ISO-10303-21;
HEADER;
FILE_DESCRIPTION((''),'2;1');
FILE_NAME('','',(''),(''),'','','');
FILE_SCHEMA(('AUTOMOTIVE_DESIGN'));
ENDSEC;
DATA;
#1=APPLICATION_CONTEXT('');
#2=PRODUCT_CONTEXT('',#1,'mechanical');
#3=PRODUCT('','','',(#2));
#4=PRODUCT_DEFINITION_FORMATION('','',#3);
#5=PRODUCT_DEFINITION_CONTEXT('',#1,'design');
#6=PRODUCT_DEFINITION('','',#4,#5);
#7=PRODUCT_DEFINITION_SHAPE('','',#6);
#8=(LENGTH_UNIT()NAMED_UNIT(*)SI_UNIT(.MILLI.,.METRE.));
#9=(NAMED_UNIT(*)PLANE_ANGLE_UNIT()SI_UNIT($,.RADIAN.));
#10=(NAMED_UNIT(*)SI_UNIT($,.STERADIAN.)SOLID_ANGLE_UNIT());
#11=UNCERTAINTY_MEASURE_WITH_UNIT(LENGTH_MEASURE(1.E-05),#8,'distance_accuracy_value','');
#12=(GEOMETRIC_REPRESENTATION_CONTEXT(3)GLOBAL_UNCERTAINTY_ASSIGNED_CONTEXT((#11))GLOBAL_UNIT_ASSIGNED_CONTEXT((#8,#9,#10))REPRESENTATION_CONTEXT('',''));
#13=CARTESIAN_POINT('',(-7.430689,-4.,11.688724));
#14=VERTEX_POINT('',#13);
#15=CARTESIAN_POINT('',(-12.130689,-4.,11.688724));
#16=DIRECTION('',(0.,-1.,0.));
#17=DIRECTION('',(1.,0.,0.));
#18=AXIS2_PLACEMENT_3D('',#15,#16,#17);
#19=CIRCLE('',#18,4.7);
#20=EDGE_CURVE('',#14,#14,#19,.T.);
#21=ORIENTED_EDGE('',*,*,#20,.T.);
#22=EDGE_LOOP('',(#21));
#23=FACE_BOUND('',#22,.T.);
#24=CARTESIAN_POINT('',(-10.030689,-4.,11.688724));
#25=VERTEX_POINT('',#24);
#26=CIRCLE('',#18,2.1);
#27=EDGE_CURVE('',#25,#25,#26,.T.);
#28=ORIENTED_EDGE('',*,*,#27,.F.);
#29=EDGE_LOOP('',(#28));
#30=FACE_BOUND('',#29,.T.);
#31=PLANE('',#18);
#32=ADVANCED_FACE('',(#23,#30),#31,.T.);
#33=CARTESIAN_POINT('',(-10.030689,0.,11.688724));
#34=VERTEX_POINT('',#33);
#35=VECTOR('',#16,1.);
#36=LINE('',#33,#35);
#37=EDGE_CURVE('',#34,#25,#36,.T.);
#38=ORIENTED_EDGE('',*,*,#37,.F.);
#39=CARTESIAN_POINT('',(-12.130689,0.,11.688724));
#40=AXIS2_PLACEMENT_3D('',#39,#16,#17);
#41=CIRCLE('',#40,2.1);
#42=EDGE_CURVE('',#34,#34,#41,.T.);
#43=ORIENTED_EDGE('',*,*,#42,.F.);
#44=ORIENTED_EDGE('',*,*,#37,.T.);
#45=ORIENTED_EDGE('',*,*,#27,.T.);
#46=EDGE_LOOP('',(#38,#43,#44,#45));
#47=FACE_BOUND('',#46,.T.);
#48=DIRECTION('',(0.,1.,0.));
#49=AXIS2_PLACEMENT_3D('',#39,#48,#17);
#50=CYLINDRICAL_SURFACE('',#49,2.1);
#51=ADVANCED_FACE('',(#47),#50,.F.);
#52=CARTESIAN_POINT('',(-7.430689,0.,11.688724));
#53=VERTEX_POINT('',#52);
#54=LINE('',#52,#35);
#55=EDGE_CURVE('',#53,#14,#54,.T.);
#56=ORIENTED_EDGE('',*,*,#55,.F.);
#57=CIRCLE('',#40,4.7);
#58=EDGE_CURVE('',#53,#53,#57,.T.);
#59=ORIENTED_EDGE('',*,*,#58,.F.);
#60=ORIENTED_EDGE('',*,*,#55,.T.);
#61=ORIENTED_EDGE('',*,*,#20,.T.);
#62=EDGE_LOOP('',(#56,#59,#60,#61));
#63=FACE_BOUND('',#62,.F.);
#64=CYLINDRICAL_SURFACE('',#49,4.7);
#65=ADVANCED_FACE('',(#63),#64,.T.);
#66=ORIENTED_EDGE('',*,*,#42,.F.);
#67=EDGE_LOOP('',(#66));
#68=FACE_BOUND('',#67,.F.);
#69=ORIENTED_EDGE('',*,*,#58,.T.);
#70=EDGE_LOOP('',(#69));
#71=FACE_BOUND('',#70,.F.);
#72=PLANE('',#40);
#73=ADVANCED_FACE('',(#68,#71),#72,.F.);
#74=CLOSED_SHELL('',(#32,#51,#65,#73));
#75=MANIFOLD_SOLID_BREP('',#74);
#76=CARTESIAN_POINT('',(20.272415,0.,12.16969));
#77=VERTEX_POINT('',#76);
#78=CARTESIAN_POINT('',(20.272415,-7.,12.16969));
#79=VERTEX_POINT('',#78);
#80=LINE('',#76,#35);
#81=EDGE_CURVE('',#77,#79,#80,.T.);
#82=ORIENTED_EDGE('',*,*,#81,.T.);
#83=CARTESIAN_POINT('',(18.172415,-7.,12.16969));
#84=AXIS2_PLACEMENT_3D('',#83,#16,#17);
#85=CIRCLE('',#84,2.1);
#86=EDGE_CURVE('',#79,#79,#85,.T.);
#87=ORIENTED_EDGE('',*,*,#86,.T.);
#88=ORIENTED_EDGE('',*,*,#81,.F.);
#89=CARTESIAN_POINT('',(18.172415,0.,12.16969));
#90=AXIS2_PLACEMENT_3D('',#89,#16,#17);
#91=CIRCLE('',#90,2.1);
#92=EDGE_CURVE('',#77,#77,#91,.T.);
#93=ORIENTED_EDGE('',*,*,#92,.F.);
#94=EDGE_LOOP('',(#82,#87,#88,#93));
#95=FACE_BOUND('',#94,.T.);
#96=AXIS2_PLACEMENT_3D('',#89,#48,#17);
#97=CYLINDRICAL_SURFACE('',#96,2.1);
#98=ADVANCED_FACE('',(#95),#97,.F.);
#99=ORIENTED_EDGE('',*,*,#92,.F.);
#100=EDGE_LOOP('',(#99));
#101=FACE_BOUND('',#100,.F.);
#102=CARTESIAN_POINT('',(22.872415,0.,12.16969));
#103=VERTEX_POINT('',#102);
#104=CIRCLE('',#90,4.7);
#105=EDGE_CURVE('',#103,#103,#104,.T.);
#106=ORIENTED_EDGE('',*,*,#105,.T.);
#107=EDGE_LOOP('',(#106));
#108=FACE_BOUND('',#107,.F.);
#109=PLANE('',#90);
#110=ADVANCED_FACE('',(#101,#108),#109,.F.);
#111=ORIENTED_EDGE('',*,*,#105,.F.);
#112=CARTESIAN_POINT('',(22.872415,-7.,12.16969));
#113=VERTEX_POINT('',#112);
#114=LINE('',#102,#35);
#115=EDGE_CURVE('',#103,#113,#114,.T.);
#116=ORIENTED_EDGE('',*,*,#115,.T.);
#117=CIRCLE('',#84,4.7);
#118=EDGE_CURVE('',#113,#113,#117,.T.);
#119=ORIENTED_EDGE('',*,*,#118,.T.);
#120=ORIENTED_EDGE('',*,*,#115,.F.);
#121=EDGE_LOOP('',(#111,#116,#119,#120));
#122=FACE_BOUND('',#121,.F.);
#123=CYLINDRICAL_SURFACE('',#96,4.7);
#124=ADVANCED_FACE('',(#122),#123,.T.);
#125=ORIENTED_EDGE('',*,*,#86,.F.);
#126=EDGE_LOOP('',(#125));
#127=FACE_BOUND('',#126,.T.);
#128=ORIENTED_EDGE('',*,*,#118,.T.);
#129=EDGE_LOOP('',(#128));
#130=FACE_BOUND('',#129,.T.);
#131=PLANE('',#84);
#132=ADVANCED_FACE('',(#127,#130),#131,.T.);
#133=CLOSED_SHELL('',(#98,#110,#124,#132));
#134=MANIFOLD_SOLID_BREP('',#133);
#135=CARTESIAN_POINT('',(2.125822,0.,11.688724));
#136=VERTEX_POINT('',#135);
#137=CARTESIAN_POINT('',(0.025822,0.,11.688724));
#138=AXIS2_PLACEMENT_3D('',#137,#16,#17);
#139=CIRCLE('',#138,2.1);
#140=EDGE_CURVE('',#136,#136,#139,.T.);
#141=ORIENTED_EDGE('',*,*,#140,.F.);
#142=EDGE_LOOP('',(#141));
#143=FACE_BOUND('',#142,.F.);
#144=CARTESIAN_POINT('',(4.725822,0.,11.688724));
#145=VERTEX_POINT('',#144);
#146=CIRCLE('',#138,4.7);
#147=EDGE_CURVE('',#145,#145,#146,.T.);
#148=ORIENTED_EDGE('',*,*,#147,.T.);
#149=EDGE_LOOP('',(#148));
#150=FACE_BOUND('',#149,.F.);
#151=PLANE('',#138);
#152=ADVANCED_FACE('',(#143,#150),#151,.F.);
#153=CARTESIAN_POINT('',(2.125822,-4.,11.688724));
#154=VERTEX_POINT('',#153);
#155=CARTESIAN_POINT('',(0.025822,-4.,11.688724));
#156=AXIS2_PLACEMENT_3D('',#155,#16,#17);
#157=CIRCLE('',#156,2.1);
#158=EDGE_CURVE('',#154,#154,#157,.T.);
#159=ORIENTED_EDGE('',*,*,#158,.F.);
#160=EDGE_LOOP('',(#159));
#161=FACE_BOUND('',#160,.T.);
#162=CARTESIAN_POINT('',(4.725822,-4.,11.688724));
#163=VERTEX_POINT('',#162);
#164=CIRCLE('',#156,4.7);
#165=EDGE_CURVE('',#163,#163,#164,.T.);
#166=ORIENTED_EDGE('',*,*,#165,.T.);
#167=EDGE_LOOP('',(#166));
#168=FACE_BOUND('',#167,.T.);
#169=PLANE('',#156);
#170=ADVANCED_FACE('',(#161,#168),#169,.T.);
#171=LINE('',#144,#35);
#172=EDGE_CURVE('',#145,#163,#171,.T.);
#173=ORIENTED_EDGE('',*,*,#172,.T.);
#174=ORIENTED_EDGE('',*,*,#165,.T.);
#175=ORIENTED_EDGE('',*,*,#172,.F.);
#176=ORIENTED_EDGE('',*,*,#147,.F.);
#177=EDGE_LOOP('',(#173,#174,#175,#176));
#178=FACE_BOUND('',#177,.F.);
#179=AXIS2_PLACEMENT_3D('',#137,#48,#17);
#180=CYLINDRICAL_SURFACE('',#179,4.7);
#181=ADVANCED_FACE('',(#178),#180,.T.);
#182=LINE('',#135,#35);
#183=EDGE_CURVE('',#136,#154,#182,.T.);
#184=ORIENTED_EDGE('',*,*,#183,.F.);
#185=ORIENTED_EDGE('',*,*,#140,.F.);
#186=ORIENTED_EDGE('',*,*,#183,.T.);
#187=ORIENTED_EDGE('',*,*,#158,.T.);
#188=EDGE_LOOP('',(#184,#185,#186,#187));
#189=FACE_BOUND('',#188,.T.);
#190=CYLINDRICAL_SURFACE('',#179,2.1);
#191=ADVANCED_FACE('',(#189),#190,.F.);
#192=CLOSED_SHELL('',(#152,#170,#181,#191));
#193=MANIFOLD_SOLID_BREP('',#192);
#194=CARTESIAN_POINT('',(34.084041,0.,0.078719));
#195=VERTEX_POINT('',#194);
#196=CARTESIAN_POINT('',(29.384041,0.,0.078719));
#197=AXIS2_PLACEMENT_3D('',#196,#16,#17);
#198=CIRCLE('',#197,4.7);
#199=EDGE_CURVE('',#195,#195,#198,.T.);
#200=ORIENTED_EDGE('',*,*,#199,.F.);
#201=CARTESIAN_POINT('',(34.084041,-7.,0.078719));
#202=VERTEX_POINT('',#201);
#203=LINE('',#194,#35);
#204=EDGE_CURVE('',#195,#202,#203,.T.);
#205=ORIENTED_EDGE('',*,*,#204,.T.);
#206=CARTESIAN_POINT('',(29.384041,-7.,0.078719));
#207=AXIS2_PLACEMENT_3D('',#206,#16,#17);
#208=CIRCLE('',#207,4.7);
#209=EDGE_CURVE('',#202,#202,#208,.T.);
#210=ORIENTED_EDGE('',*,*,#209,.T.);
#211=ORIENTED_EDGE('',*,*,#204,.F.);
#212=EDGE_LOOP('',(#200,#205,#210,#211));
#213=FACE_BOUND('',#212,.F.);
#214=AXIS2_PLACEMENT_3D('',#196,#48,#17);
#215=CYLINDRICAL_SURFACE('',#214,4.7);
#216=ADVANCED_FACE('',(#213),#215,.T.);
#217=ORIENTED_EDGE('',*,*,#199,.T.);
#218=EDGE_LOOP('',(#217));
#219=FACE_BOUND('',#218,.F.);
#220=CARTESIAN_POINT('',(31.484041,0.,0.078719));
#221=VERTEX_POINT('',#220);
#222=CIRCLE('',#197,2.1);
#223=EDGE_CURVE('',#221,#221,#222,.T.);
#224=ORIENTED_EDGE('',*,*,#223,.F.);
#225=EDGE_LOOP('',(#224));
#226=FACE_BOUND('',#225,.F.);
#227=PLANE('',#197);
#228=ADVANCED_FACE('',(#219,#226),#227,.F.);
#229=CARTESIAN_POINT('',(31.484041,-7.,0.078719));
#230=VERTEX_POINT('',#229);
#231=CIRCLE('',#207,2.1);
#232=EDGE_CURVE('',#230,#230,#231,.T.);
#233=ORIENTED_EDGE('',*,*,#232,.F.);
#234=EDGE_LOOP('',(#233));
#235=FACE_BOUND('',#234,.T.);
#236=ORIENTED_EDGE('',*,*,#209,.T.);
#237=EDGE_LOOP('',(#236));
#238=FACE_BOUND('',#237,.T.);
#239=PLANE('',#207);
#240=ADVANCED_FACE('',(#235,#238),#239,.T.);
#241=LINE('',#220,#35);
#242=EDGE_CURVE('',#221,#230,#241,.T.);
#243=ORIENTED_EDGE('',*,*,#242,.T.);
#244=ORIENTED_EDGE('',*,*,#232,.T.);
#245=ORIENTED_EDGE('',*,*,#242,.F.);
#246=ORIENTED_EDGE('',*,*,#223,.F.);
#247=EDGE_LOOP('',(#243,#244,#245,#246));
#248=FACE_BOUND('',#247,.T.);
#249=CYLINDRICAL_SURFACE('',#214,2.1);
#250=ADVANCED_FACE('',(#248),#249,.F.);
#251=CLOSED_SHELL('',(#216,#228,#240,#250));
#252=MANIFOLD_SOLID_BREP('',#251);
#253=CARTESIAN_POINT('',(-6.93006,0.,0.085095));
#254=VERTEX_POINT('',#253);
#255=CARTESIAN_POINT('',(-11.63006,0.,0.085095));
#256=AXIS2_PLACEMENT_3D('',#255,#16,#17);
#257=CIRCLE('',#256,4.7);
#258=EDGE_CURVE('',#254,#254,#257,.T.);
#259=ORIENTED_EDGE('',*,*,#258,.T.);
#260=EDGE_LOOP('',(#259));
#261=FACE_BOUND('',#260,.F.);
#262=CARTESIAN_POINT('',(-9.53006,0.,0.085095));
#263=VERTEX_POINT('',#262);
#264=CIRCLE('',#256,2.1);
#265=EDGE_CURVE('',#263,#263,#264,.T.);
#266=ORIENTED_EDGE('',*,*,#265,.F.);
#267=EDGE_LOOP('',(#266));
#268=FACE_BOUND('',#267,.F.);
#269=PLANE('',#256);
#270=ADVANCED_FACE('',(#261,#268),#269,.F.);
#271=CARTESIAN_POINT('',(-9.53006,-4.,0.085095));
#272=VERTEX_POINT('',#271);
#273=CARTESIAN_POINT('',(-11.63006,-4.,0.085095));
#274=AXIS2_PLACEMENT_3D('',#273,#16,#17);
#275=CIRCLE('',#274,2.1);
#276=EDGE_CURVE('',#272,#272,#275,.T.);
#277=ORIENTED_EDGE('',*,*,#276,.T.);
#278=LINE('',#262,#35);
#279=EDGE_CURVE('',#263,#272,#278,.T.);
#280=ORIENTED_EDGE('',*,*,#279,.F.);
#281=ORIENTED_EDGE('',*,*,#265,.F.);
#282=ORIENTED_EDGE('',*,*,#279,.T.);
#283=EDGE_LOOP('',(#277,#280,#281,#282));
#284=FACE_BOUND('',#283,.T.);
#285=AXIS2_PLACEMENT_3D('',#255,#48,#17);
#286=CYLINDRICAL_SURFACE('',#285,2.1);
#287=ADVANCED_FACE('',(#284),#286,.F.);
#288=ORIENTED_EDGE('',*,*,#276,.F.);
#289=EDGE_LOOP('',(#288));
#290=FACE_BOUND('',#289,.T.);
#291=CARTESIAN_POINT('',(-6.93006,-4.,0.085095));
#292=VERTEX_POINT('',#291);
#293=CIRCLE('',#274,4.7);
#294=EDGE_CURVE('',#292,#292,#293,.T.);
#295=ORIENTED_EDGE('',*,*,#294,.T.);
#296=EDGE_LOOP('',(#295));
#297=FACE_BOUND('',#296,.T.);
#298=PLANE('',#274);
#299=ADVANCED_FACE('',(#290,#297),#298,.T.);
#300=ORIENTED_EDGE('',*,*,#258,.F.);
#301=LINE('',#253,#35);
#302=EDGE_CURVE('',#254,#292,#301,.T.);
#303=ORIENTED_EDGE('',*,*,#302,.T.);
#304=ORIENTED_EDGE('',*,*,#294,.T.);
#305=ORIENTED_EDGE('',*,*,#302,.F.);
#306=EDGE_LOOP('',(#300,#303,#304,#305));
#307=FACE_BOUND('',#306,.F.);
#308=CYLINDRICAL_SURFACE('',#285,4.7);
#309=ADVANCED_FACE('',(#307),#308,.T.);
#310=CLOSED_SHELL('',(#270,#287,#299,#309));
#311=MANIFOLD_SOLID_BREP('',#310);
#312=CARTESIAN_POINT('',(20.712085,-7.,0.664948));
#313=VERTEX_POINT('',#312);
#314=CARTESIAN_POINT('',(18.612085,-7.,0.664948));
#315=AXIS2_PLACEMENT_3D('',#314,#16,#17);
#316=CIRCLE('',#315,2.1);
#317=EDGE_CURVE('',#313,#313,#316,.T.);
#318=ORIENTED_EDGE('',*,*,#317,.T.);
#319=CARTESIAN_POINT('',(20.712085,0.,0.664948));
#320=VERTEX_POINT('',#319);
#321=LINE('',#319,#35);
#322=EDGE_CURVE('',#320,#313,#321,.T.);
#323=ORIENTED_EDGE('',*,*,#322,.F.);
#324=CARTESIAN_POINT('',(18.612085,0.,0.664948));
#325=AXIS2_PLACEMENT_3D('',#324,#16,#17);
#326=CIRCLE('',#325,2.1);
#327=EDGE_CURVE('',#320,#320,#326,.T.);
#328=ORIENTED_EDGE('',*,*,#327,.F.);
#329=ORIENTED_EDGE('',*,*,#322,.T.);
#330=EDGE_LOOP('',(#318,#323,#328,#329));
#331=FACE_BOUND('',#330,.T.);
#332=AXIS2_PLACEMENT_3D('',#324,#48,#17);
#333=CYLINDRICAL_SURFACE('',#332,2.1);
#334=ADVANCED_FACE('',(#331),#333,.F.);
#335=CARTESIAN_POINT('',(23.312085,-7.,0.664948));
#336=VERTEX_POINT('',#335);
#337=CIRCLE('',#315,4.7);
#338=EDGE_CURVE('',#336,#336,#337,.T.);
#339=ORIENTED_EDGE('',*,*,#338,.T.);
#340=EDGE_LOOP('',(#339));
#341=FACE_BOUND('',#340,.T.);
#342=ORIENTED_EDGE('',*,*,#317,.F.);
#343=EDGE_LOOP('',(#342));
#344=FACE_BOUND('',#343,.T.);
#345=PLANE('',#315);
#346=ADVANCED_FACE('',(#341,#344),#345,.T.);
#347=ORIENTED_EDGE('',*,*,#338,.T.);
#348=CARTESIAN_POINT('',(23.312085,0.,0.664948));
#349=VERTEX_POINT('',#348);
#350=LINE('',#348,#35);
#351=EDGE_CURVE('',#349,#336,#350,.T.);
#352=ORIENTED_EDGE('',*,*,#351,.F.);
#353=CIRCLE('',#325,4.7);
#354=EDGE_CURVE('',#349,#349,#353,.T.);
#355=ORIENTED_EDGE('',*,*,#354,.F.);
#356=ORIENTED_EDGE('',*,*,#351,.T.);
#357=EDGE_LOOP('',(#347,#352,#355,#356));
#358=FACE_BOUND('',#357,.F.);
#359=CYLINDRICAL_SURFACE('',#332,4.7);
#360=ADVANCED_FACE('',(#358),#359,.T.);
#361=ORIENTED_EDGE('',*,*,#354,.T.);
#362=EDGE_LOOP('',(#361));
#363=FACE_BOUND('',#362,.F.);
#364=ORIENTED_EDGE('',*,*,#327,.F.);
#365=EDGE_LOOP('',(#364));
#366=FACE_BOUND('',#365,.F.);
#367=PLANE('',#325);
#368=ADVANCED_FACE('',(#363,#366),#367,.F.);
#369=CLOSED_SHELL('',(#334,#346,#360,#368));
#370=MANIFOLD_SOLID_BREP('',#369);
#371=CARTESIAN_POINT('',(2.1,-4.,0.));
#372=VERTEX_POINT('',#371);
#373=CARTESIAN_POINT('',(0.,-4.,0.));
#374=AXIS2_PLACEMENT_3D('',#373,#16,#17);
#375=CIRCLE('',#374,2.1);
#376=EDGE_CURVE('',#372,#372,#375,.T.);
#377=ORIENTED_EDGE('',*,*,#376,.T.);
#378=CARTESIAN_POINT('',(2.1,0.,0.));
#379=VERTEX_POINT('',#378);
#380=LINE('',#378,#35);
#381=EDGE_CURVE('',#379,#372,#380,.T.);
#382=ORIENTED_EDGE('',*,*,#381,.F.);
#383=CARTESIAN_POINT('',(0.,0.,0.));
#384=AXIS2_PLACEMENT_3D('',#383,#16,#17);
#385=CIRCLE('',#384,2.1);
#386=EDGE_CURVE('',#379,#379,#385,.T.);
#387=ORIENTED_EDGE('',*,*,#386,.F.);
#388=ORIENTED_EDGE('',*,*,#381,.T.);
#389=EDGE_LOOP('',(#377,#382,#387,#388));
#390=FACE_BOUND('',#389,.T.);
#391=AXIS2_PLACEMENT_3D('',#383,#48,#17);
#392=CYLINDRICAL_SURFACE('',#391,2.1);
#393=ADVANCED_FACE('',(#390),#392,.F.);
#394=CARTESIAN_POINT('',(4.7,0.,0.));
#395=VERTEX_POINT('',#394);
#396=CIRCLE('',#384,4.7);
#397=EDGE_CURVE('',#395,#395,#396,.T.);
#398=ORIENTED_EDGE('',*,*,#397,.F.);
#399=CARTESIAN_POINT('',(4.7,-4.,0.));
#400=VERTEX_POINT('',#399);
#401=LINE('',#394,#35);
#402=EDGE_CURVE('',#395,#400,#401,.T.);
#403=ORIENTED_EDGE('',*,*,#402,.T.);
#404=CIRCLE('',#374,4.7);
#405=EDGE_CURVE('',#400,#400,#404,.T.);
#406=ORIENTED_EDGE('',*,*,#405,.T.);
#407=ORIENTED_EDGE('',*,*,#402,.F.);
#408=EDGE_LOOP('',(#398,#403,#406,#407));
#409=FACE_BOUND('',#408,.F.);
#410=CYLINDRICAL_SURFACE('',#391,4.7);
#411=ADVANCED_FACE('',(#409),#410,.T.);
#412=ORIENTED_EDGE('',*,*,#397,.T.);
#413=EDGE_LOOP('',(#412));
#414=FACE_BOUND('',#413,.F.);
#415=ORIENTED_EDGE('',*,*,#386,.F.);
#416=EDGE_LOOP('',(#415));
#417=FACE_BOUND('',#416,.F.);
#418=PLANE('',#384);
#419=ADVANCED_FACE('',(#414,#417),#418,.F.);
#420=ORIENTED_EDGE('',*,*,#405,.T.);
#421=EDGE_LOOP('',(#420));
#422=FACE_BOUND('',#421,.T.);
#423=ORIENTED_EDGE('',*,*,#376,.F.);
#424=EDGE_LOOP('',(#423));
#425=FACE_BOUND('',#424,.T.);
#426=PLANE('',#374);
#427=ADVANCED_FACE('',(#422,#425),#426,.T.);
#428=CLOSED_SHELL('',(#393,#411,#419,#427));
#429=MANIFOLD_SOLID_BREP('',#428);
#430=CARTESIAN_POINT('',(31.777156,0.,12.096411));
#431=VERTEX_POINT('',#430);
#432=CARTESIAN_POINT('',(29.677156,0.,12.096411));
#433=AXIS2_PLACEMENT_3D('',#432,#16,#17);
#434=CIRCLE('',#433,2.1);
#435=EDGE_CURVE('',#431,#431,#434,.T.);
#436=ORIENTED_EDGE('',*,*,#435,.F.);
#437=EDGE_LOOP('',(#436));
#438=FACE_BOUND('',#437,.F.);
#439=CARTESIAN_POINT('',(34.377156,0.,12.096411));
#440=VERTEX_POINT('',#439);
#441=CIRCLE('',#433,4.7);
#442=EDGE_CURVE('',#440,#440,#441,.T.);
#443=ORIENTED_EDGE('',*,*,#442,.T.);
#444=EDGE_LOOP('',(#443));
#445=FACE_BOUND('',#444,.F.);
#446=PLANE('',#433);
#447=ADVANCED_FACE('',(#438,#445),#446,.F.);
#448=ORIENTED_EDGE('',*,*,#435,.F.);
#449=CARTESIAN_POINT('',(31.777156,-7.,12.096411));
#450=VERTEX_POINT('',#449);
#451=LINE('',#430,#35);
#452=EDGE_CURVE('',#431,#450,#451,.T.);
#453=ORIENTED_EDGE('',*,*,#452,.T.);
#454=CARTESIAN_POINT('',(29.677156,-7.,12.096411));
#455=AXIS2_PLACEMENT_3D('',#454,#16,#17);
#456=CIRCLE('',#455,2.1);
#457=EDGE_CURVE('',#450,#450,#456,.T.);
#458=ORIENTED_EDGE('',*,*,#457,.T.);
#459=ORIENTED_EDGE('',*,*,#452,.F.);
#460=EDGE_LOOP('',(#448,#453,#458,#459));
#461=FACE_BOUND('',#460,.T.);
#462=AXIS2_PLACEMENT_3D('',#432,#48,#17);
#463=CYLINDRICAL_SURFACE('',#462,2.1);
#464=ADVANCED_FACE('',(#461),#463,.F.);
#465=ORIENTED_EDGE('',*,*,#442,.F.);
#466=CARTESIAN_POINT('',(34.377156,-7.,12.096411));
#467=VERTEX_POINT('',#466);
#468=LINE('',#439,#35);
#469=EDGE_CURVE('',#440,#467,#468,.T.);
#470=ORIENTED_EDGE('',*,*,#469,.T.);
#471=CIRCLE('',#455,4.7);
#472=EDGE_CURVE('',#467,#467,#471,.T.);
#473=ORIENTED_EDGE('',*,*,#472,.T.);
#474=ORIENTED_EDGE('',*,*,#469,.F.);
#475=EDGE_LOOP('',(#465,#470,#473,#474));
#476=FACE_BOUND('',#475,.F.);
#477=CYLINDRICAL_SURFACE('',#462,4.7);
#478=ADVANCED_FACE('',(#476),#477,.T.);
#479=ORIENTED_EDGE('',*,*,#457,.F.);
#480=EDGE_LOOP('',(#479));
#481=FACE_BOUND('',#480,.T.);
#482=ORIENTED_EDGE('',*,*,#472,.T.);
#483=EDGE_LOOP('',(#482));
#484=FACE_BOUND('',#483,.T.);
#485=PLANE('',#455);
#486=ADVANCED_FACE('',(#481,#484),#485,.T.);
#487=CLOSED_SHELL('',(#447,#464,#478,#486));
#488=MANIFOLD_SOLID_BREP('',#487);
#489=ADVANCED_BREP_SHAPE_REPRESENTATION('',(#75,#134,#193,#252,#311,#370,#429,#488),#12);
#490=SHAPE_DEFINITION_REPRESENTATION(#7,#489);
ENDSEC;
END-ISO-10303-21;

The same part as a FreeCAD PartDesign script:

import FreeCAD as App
import Part
import Sketcher
from FreeCAD import Vector

doc = App.newDocument("Part")
body = doc.addObject("PartDesign::Body", "Body")
body.AllowCompound = True

sketch1 = body.newObject("Sketcher::SketchObject", "Sketch")
sketch1.AttachmentSupport = (doc.getObject("XZ_Plane"), [""])
sketch1.MapMode = "FlatFace"
sketch1.addGeometry([
    Part.Circle(Vector(18.2, 12.2, 0), Vector(0, 0, 1), 4.7),
    Part.Circle(Vector(18.2, 12.2, 0), Vector(0, 0, 1), 2.1),
    Part.Circle(Vector(29.7, 12.1, 0), Vector(0, 0, 1), 4.7),
    Part.Circle(Vector(29.7, 12.1, 0), Vector(0, 0, 1), 2.1),
    Part.Circle(Vector(29.4, 0.1, 0), Vector(0, 0, 1), 4.7),
    Part.Circle(Vector(29.4, 0.1, 0), Vector(0, 0, 1), 2.1),
    Part.Circle(Vector(18.6, 0.7, 0), Vector(0, 0, 1), 4.7),
    Part.Circle(Vector(18.6, 0.7, 0), Vector(0, 0, 1), 2.1),
], False)
sketch1.addConstraint([
    Sketcher.Constraint("Coincident", 1, 3, 0, 3),
    Sketcher.Constraint("Coincident", 3, 3, 2, 3),
    Sketcher.Constraint("Coincident", 5, 3, 4, 3),
    Sketcher.Constraint("Coincident", 7, 3, 6, 3),
    Sketcher.Constraint("Equal", 0, 2),
    Sketcher.Constraint("Equal", 1, 3),
    Sketcher.Constraint("Equal", 2, 4),
    Sketcher.Constraint("Equal", 3, 5),
    Sketcher.Constraint("Equal", 4, 6),
    Sketcher.Constraint("Equal", 5, 7),
    Sketcher.Constraint("Diameter", 0, 9.4),
    Sketcher.Constraint("Diameter", 1, 4.2),
    Sketcher.Constraint("DistanceY", -1, 1, 0, 3, 12.16969),
    Sketcher.Constraint("DistanceY", -1, 1, 2, 3, 12.096411),
    Sketcher.Constraint("DistanceX", -1, 1, 4, 3, 29.384041),
    Sketcher.Constraint("DistanceY", -1, 1, 4, 3, 0.078719),
    Sketcher.Constraint("DistanceX", 0, 3, 2, 3, 11.504741),
    Sketcher.Constraint("DistanceY", 4, 3, 6, 3, 0.586229),
    Sketcher.Constraint("DistanceX", 0, 3, 6, 3, 0.43967),
    Sketcher.Constraint("DistanceX", -1, 1, 0, 3, 18.172415),
])
pad1 = body.newObject("PartDesign::Pad", "Pad")
pad1.Profile = sketch1
pad1.Length = 7
body2 = doc.addObject("PartDesign::Body", "Body001")
body2.AllowCompound = True

sketch2 = body2.newObject("Sketcher::SketchObject", "Sketch001")
sketch2.AttachmentSupport = (doc.getObject("XZ_Plane001"), [""])
sketch2.MapMode = "FlatFace"
sketch2.addGeometry([
    Part.Circle(Vector(-12.1, 11.7, 0), Vector(0, 0, 1), 4.7),
    Part.Circle(Vector(-12.1, 11.7, 0), Vector(0, 0, 1), 2.1),
    Part.Circle(Vector(0, 11.7, 0), Vector(0, 0, 1), 4.7),
    Part.Circle(Vector(0, 11.7, 0), Vector(0, 0, 1), 2.1),
    Part.Circle(Vector(0, 0, 0), Vector(0, 0, 1), 4.7),
    Part.Circle(Vector(0, 0, 0), Vector(0, 0, 1), 2.1),
    Part.Circle(Vector(-11.6, 0.1, 0), Vector(0, 0, 1), 4.7),
    Part.Circle(Vector(-11.6, 0.1, 0), Vector(0, 0, 1), 2.1),
], False)
sketch2.addConstraint([
    Sketcher.Constraint("Coincident", 4, 3, -1, 1),
    Sketcher.Constraint("Coincident", 5, 3, -1, 1),
    Sketcher.Constraint("Coincident", 1, 3, 0, 3),
    Sketcher.Constraint("Coincident", 3, 3, 2, 3),
    Sketcher.Constraint("Coincident", 7, 3, 6, 3),
    Sketcher.Constraint("Equal", 0, 2),
    Sketcher.Constraint("Equal", 1, 3),
    Sketcher.Constraint("Equal", 2, 4),
    Sketcher.Constraint("Equal", 3, 5),
    Sketcher.Constraint("Equal", 4, 6),
    Sketcher.Constraint("Equal", 5, 7),
    Sketcher.Constraint("Horizontal", 1, 3, 2, 3),
    Sketcher.Constraint("Diameter", 0, 9.4),
    Sketcher.Constraint("Diameter", 1, 4.2),
    Sketcher.Constraint("DistanceX", 0, 3, -1, 1, 12.130689),
    Sketcher.Constraint("DistanceX", 6, 3, -1, 1, 11.63006),
    Sketcher.Constraint("DistanceX", 0, 3, 2, 3, 12.156511),
    Sketcher.Constraint("DistanceY", 6, 3, 0, 3, 11.603629),
    Sketcher.Constraint("DistanceY", -1, 1, 0, 3, 11.688724),
])
pad2 = body2.newObject("PartDesign::Pad", "Pad001")
pad2.Profile = sketch2
pad2.Length = 4

doc.recompute()
